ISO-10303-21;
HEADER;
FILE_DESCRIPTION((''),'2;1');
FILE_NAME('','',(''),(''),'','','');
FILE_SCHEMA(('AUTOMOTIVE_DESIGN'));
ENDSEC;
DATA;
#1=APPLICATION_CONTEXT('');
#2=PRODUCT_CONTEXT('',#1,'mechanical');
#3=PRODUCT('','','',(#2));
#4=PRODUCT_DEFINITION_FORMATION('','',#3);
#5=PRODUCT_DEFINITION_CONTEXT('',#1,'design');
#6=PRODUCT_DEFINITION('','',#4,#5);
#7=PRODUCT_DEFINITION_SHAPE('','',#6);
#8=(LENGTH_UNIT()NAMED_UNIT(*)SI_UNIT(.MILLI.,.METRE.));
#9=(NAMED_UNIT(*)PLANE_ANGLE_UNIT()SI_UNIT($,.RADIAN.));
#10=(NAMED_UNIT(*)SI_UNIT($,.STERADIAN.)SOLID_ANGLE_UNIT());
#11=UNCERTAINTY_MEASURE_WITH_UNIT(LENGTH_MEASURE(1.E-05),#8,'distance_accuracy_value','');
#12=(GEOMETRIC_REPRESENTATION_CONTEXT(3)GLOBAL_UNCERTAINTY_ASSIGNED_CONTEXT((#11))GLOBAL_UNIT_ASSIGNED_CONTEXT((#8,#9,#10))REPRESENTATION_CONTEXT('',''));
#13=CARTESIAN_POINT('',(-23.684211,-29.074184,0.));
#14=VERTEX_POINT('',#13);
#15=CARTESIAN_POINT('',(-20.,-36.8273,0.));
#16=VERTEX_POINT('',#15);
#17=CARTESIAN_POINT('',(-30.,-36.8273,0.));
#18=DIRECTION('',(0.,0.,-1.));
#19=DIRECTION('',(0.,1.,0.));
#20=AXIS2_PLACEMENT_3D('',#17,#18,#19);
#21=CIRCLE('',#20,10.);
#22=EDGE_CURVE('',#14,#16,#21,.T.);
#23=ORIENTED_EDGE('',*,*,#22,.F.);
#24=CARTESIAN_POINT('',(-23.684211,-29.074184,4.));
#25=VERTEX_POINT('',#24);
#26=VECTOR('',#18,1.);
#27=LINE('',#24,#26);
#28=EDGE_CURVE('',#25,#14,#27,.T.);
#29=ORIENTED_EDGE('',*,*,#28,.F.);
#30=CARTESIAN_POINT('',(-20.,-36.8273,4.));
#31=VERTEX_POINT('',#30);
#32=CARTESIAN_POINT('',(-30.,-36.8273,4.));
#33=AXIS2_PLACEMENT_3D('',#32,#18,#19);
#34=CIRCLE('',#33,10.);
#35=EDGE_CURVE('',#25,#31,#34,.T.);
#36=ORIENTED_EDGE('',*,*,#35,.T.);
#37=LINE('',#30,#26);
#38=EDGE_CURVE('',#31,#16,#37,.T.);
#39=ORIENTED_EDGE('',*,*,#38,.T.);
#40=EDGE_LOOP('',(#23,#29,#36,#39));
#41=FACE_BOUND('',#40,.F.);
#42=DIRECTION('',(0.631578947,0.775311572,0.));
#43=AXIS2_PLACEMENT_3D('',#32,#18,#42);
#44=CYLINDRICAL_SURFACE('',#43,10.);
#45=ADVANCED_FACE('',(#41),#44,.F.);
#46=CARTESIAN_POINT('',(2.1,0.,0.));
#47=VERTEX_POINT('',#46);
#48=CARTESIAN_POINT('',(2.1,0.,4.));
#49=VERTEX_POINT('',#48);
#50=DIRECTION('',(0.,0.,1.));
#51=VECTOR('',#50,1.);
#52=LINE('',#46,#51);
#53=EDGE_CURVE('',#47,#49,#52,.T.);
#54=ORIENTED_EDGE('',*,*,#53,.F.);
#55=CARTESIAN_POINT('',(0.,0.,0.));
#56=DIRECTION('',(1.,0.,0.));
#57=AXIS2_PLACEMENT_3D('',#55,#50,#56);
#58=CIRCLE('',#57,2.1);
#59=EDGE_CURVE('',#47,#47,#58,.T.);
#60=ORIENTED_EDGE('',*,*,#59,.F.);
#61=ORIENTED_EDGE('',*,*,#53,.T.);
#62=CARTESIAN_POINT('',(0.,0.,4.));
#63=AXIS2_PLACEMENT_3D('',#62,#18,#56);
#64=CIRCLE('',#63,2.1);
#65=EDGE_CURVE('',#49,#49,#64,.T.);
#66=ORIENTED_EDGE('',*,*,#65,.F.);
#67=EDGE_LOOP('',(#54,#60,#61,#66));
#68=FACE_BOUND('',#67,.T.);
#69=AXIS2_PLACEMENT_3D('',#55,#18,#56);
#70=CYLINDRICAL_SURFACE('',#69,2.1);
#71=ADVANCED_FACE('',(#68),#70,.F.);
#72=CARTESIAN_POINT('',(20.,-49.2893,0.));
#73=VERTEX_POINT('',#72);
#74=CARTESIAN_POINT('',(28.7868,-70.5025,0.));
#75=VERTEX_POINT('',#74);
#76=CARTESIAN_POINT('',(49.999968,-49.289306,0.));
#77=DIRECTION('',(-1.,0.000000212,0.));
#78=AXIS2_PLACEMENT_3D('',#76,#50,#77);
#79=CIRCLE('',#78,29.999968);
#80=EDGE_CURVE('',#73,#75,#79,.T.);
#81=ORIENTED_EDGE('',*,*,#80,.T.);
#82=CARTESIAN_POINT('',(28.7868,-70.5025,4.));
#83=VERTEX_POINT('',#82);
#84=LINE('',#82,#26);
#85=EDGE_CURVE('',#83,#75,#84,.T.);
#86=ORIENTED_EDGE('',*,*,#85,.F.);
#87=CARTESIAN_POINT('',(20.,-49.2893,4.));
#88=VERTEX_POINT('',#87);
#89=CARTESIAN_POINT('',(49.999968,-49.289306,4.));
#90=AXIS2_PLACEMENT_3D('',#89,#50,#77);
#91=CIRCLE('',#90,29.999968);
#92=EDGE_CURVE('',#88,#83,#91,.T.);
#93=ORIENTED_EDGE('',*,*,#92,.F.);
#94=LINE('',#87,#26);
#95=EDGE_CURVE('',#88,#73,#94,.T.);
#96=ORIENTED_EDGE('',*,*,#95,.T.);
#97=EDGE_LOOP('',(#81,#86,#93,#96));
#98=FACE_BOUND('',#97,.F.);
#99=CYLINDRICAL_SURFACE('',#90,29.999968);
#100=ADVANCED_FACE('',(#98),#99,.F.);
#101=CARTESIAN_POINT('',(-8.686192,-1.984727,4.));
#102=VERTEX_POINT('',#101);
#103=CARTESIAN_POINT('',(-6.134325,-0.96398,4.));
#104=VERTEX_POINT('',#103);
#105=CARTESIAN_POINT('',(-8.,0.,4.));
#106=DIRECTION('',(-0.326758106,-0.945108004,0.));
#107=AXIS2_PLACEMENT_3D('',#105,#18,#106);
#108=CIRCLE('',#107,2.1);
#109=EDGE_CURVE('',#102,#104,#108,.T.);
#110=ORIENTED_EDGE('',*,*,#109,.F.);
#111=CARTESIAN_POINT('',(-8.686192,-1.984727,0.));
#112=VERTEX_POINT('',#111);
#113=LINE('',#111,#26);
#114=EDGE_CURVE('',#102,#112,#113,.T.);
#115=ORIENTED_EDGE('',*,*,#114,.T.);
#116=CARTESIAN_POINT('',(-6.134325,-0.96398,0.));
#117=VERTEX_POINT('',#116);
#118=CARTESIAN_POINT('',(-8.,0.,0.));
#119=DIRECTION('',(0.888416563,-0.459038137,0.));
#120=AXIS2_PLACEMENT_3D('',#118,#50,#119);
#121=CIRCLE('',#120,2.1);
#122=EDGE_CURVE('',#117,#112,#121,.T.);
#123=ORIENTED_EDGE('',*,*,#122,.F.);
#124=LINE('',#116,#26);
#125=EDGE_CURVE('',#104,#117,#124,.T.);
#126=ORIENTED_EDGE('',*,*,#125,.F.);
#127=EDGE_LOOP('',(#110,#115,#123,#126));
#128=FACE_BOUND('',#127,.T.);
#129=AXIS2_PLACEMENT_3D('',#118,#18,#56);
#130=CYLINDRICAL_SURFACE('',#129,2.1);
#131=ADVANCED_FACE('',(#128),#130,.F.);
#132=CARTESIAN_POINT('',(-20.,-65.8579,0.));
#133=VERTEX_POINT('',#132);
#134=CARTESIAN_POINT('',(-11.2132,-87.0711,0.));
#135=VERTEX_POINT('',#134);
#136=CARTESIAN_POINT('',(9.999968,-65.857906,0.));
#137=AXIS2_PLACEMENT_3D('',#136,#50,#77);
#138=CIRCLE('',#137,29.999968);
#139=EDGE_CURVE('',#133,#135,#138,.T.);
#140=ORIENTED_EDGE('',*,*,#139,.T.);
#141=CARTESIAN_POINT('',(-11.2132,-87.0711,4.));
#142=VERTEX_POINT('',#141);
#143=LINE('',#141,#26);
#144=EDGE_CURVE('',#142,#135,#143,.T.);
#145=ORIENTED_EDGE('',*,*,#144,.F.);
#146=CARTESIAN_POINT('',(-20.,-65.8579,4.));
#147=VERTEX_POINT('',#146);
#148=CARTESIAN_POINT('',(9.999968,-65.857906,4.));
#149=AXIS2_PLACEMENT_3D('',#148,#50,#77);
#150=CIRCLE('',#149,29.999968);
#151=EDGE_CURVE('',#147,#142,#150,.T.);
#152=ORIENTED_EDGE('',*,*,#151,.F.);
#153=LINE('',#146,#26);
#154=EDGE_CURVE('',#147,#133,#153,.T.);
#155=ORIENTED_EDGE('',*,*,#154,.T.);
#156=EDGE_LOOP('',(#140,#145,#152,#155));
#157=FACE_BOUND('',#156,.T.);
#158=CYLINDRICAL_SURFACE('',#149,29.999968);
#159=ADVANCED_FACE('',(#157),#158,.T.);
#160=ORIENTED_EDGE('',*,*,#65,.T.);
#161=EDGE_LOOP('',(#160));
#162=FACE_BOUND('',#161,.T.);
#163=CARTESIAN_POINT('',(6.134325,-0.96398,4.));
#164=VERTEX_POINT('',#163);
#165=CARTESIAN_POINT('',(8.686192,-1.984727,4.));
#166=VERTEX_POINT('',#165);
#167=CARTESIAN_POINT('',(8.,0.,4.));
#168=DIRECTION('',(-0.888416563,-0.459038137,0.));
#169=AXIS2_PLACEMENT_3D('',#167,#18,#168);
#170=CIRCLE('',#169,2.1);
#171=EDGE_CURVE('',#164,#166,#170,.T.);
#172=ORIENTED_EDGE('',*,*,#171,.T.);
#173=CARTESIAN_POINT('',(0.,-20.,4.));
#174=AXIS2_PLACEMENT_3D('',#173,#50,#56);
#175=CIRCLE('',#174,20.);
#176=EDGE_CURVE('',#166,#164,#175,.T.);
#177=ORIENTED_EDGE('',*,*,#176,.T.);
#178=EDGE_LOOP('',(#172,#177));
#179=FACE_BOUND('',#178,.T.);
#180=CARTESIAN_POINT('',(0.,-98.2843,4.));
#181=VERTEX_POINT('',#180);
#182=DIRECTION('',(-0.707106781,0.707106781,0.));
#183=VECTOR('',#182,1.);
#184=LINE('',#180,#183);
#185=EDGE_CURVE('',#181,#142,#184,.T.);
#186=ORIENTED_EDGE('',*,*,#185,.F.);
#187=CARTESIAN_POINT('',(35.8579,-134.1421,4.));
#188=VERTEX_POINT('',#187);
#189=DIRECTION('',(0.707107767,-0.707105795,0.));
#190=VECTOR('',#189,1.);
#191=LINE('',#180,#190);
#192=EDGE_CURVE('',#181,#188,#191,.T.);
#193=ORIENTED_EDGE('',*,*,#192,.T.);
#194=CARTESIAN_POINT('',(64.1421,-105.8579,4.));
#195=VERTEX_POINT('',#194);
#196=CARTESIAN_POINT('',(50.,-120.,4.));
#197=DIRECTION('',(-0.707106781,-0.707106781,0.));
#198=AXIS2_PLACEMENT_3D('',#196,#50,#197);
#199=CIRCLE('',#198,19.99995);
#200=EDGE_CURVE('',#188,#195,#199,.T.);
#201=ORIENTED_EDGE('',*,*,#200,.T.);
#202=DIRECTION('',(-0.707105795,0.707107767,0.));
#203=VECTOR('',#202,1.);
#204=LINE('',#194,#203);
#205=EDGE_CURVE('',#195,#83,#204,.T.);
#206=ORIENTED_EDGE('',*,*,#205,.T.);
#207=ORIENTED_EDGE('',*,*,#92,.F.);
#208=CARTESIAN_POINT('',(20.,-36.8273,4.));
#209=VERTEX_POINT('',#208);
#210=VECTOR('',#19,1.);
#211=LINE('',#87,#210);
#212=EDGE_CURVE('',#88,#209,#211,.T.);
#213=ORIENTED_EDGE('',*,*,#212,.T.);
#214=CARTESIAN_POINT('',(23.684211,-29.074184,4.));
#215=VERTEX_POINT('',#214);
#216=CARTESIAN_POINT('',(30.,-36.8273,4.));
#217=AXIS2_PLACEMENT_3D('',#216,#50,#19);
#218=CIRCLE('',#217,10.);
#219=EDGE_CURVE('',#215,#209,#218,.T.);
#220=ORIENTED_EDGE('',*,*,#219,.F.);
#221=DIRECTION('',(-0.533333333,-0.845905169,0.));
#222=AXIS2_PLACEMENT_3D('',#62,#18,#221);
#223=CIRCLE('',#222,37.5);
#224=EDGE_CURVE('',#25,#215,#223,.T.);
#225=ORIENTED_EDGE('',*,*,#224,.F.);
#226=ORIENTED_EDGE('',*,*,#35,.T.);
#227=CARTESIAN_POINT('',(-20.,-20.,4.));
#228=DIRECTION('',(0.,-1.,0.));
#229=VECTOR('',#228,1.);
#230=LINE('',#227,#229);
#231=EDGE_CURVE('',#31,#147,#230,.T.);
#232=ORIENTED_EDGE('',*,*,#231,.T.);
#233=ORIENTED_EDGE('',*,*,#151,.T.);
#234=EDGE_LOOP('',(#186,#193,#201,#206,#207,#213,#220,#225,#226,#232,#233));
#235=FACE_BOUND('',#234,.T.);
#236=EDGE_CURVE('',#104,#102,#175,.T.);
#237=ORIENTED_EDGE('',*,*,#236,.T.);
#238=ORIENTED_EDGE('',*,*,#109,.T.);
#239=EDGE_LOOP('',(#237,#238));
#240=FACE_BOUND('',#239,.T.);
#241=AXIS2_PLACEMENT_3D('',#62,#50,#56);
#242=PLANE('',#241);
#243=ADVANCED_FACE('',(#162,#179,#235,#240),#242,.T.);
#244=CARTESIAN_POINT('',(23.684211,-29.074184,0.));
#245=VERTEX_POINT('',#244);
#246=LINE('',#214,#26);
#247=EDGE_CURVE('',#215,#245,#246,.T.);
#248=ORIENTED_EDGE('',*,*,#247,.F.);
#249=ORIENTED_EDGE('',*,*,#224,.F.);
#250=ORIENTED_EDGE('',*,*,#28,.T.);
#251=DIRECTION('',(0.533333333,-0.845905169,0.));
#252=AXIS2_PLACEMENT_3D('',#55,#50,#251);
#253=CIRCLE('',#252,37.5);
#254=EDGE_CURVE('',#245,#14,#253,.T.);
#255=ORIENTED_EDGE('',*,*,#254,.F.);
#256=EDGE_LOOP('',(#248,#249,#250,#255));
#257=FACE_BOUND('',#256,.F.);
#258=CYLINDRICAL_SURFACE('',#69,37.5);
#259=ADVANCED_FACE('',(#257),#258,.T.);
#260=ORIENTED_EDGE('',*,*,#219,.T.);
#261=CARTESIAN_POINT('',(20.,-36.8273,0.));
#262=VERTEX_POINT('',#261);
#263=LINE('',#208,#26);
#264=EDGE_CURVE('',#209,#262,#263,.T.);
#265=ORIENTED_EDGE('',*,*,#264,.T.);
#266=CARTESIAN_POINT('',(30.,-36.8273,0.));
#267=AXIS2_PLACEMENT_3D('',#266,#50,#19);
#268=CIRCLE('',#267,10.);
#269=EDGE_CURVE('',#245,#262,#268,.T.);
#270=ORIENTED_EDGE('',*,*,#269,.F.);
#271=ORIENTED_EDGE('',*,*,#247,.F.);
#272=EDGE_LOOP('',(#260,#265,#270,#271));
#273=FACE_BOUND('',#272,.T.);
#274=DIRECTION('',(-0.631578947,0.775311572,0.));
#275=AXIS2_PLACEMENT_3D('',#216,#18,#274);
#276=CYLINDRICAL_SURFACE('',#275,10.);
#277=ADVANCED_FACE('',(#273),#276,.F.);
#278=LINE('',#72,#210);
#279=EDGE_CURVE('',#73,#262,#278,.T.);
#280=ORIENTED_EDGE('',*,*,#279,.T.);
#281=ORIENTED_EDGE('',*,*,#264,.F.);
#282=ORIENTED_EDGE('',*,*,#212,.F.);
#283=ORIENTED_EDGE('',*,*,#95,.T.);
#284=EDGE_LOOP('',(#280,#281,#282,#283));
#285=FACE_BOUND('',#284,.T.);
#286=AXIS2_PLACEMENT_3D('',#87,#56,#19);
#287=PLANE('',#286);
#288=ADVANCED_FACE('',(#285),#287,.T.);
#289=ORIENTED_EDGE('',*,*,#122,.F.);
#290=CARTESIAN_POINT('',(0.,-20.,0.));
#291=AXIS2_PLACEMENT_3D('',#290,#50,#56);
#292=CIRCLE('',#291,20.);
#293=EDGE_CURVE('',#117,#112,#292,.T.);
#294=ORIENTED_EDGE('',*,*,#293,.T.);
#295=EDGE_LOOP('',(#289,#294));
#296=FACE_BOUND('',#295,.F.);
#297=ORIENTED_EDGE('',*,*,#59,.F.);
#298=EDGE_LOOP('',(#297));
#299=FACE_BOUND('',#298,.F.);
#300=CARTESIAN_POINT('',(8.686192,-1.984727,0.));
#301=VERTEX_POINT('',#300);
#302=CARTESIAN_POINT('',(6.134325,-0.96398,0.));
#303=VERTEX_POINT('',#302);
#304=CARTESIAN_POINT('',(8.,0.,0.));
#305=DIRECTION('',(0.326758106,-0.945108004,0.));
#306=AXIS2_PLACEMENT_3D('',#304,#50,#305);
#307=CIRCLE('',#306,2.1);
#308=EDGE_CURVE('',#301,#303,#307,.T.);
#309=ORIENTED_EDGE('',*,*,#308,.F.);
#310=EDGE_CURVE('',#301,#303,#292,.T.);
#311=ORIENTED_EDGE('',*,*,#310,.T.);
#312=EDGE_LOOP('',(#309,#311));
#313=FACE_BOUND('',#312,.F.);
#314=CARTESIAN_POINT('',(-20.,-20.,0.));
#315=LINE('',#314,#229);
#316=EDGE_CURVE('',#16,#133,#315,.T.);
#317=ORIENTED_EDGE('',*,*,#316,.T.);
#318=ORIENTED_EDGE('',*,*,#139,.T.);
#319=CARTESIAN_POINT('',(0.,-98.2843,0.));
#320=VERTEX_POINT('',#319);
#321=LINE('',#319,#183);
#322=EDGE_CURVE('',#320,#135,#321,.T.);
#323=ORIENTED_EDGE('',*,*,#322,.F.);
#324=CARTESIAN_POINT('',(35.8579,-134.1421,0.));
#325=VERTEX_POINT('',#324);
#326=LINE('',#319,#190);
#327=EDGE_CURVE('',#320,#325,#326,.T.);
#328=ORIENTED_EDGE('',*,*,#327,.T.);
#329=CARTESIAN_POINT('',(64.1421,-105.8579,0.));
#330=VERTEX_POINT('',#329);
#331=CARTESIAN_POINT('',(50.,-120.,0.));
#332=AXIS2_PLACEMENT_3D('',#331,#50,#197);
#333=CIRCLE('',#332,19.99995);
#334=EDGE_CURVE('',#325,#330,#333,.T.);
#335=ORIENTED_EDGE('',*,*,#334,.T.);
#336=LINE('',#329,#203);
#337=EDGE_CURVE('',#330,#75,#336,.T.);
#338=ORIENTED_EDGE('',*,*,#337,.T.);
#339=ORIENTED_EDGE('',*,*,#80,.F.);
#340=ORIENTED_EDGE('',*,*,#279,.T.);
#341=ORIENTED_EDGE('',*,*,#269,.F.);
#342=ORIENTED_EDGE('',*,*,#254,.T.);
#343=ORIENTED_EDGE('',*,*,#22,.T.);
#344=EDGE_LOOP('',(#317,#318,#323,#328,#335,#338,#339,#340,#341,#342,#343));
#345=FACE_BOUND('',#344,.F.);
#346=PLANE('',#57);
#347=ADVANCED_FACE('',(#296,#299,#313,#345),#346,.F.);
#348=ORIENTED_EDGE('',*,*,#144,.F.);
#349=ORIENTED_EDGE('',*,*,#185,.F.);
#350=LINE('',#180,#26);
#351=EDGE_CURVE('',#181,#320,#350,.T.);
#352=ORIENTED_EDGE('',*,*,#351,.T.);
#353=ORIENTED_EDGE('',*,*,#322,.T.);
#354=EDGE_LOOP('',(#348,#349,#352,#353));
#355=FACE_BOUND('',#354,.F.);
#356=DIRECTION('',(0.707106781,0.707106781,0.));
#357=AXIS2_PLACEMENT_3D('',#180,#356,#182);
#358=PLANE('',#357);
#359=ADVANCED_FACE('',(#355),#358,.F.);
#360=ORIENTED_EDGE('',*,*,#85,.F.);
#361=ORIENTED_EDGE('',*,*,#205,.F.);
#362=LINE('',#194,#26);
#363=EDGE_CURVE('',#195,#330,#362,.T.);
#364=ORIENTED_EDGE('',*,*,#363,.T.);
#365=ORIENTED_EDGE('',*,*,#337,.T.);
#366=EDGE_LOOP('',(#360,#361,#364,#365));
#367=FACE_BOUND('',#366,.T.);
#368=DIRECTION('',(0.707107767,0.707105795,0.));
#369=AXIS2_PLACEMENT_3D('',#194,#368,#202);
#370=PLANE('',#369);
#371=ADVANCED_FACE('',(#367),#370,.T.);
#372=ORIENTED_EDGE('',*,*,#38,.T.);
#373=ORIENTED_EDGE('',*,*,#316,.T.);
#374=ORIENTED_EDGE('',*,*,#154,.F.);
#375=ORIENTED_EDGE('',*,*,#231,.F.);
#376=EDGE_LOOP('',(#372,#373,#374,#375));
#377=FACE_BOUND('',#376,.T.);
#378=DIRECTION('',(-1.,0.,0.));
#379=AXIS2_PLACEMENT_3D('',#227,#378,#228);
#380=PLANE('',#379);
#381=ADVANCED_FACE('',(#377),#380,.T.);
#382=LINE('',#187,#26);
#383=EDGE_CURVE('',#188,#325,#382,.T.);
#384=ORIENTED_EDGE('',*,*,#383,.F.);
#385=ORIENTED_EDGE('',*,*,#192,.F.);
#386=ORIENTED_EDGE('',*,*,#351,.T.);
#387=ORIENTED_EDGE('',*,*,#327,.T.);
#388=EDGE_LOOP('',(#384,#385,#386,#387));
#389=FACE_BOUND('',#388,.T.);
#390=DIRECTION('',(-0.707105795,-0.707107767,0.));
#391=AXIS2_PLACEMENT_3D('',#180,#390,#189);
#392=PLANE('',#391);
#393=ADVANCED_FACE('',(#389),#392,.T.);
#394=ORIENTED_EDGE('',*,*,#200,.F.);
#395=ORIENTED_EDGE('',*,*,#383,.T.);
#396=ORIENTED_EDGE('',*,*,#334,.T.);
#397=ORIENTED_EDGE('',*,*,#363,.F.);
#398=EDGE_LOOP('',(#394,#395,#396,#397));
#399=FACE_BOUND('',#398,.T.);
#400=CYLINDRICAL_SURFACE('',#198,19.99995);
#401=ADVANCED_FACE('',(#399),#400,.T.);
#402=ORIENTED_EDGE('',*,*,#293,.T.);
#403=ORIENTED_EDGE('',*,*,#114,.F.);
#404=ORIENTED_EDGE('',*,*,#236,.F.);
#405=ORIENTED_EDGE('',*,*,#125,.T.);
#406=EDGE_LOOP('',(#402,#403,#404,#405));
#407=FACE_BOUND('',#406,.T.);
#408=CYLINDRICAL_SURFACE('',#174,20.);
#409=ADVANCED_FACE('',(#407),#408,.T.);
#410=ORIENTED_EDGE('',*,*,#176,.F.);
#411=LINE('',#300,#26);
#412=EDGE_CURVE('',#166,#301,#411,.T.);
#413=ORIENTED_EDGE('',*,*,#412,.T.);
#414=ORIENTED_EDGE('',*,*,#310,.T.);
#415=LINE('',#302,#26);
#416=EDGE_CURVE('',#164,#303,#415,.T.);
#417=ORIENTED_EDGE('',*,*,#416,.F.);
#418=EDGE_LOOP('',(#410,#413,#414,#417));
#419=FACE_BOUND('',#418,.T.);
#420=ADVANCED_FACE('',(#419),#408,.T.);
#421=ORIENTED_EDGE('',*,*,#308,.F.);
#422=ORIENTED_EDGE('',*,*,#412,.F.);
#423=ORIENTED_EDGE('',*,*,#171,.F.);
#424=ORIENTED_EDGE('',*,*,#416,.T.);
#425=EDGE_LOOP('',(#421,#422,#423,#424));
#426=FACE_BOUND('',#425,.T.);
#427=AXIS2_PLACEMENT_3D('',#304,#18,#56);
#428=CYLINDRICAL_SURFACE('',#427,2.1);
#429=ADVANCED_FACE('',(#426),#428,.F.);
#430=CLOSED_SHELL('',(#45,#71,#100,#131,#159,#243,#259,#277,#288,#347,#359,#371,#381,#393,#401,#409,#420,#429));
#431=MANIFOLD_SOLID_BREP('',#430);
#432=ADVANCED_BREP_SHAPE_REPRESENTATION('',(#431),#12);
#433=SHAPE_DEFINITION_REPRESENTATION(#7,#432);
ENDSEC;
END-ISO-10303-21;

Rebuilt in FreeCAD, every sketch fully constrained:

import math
import FreeCAD as App
import Part
import Sketcher
from FreeCAD import Vector
Q = App.Units.Quantity


def edges_at(feature, points):
    """Names of the edges that pass closest to the given points."""
    edges = feature.Shape.Edges
    near = lambda p: min(range(len(edges)), key=lambda i: edges[i].distToShape(Part.Vertex(*p))[0])
    return sorted({f"Edge{near(p) + 1}" for p in points})

doc = App.newDocument("Part")
body = doc.addObject("PartDesign::Body", "Body")

sketch1 = doc.addObject("Sketcher::SketchObject", "Sketch")
body.addObject(sketch1)
sketch1.AttachmentSupport = (doc.XY_Plane, [""])
sketch1.MapMode = "FlatFace"
sketch1.addGeometry([
    Part.Circle(Vector(0, 0, 0), Vector(0, 0, 1), 37.5),
    Part.Circle(Vector(-8, 0, 0), Vector(0, 0, 1), 2.1),
    Part.Circle(Vector(0, 0, 0), Vector(0, 0, 1), 2.1),
    Part.Circle(Vector(8, 0, 0), Vector(0, 0, 1), 2.1),
], False)
sketch1.addConstraint([
    Sketcher.Constraint("Coincident", 0, 3, -1, 1),
    Sketcher.Constraint("Coincident", 2, 3, -1, 1),
    Sketcher.Constraint("Equal", 1, 2),
    Sketcher.Constraint("Equal", 2, 3),
    Sketcher.Constraint("Symmetric", 1, 3, 3, 3, -1, 1),
    Sketcher.Constraint("PointOnObject", 1, 3, -1),
    Sketcher.Constraint("Diameter", 0, Q("75 mm")),
    Sketcher.Constraint("Diameter", 1, Q("4.2 mm")),
    Sketcher.Constraint("DistanceX", 1, 3, -1, 1, Q("8 mm")),
])
pad1 = doc.addObject("PartDesign::Pad", "Pad")
body.addObject(pad1)
pad1.Profile = sketch1
pad1.Length = 4

sketch2 = doc.addObject("Sketcher::SketchObject", "Sketch001")
body.addObject(sketch2)
sketch2.AttachmentSupport = (doc.XY_Plane, [""])
sketch2.MapMode = "FlatFace"
sketch2.AttachmentOffset = App.Placement(Vector(0, 0, 4), App.Rotation())
sketch2.addGeometry([
    Part.ArcOfCircle(Part.Circle(Vector(0, 0, 0), Vector(0, 0, 1), 2.1), math.radians(-177), math.radians(-3)),
    Part.ArcOfCircle(Part.Circle(Vector(0, -20, 0), Vector(0, 0, 1), 20), math.radians(96), math.radians(180)),
    Part.LineSegment(Vector(-20, -20, 0), Vector(-20, -65.9, 0)),
    Part.ArcOfCircle(Part.Circle(Vector(10, -65.9, 0), Vector(0, 0, 1), 30), math.radians(180), math.radians(225)),
    Part.LineSegment(Vector(-11.2, -87.1, 0), Vector(0, -98.3, 0)),
    Part.LineSegment(Vector(0, -98.3, 0), Vector(35.9, -134.1, 0)),
    Part.ArcOfCircle(Part.Circle(Vector(50, -120, 0), Vector(0, 0, 1), 20), math.radians(-135), math.radians(45)),
    Part.LineSegment(Vector(64.1, -105.9, 0), Vector(28.8, -70.5, 0)),
    Part.ArcOfCircle(Part.Circle(Vector(50, -49.3, 0), Vector(0, 0, 1), 30), math.radians(180), math.radians(225)),
    Part.LineSegment(Vector(20, -49.3, 0), Vector(20, -20, 0)),
    Part.ArcOfCircle(Part.Circle(Vector(0, -20, 0), Vector(0, 0, 1), 20), math.radians(0), math.radians(84)),
], False)
sketch2.addConstraint([
    Sketcher.Constraint("Coincident", 0, 1, 1, 1),
    Sketcher.Constraint("Tangent", 1, 2, 2, 1),
    Sketcher.Constraint("Tangent", 2, 2, 3, 1),
    Sketcher.Constraint("Tangent", 3, 2, 4, 1),
    Sketcher.Constraint("Coincident", 4, 2, 5, 1),
    Sketcher.Constraint("Tangent", 5, 2, 6, 1),
    Sketcher.Constraint("Tangent", 6, 2, 7, 1),
    Sketcher.Constraint("Tangent", 7, 2, 8, 2),
    Sketcher.Constraint("Tangent", 8, 1, 9, 1),
    Sketcher.Constraint("Tangent", 9, 2, 10, 1),
    Sketcher.Constraint("Coincident", 10, 2, 0, 2),
    Sketcher.Constraint("Vertical", 2),
    Sketcher.Constraint("Vertical", 9),
    Sketcher.Constraint("Coincident", 0, 3, -1, 1),
    Sketcher.Constraint("Coincident", 10, 3, 1, 3),
    Sketcher.Constraint("Equal", 1, 6),
    Sketcher.Constraint("Equal", 3, 8),
    Sketcher.Constraint("Equal", 6, 10),
    Sketcher.Constraint("PointOnObject", 1, 3, -2),
    Sketcher.Constraint("PointOnObject", 4, 2, -2),
    Sketcher.Constraint("Parallel", 4, 5),
    Sketcher.Constraint("Parallel", 5, 7),
    Sketcher.Constraint("Vertical", 6, 3, 8, 3),
    Sketcher.Constraint("Radius", 1, Q("20 mm")),
    Sketcher.Constraint("Radius", 3, Q("30 mm")),
    Sketcher.Constraint("Angle", 4, Q("-45 deg")),
    Sketcher.Constraint("Radius", 0, Q("2.1 mm")),
    Sketcher.Constraint("DistanceY", 1, 3, -1, 1, Q("20 mm")),
    Sketcher.Constraint("DistanceY", 6, 3, -1, 1, Q("120 mm")),
])
pad2 = doc.addObject("PartDesign::Pad", "Pad001")
body.addObject(pad2)
pad2.Profile = sketch2
pad2.Length = 4
pad2.Reversed = True
doc.recompute()

fillet = doc.addObject("PartDesign::Fillet", "Fillet")
body.addObject(fillet)
fillet.Base = (pad2, edges_at(pad2, [(-20, -31.721, 2), (20, -31.721, 2)]))
fillet.Radius = 10

doc.recompute()
